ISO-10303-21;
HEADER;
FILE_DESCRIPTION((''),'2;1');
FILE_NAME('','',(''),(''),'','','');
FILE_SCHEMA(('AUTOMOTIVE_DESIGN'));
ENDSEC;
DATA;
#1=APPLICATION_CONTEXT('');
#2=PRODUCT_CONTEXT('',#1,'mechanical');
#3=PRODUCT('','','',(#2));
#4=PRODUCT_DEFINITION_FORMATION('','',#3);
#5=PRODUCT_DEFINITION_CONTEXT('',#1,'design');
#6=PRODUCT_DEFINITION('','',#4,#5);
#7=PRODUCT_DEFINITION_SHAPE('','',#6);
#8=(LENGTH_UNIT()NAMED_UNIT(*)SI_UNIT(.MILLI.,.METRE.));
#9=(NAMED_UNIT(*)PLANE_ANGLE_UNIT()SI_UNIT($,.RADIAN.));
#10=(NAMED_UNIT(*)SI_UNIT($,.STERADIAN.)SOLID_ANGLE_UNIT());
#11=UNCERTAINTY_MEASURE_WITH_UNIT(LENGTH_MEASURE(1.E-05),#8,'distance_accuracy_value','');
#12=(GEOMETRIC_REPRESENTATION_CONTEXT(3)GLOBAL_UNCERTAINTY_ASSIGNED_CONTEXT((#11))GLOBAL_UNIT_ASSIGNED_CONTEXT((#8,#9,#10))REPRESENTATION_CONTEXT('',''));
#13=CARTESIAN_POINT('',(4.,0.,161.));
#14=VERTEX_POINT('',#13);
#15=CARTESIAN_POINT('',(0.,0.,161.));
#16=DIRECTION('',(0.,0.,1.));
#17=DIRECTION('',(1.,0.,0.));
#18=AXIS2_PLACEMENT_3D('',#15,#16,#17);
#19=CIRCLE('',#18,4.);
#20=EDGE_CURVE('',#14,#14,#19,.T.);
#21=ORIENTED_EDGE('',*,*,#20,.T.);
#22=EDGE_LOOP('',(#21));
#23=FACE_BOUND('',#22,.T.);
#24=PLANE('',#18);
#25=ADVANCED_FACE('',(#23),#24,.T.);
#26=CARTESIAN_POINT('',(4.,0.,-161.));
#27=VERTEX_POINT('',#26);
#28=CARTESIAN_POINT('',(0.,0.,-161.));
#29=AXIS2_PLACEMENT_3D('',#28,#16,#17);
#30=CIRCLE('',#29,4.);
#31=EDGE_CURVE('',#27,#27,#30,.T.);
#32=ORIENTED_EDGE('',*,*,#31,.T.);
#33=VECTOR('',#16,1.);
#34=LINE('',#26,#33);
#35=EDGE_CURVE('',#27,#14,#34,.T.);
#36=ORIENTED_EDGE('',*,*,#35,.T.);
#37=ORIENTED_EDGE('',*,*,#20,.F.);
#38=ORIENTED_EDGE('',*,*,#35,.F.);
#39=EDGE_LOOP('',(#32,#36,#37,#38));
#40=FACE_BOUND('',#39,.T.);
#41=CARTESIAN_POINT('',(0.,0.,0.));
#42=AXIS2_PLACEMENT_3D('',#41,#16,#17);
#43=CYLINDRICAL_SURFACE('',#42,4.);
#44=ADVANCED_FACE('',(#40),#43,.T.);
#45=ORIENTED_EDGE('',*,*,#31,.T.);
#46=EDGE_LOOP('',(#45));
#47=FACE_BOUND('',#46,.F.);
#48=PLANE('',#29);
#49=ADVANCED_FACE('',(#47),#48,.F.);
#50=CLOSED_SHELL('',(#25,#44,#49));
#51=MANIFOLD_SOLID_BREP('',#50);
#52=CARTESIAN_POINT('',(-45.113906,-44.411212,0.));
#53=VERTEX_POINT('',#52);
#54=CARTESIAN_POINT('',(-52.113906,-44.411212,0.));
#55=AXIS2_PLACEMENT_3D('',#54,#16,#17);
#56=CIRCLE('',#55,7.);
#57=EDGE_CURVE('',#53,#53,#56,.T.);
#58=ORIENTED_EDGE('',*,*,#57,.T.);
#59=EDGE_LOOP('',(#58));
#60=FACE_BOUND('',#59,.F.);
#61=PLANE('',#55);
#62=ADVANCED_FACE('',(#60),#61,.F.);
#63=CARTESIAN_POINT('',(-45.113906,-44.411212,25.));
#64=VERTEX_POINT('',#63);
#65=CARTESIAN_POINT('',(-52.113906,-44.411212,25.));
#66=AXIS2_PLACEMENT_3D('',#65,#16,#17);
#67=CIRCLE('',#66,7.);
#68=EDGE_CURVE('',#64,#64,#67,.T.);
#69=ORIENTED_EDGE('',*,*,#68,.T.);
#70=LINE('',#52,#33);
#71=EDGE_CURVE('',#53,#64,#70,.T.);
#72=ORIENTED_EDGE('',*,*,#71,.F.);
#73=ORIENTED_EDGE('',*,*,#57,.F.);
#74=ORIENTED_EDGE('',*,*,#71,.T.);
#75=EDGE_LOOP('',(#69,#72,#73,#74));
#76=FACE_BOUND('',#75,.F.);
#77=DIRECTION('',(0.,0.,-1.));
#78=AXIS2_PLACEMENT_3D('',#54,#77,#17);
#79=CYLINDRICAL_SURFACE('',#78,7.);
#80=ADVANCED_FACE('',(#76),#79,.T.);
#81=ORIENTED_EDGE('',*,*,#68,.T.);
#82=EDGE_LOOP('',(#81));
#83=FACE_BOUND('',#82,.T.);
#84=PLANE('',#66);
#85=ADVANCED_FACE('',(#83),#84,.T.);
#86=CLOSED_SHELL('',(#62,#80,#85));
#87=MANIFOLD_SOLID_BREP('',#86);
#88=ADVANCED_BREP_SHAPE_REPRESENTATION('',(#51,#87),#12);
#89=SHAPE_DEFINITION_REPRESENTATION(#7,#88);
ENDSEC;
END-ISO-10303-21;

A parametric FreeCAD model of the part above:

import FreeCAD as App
import Part
import Sketcher

V = App.Vector
Q = App.Units.Quantity

doc = App.newDocument("Part")
body = doc.addObject("PartDesign::Body", "Body")

# Sketch on XY plane
sketch1 = body.newObject("Sketcher::SketchObject", "Sketch")
sketch1.AttachmentSupport = (doc.getObject("XY_Plane"), [""])
sketch1.MapMode = "FlatFace"
sketch1.addGeometry(Part.Circle(V(0, 0, 0), V(0, 0, 1), 4), False)
sketch1.addConstraint([
    Sketcher.Constraint("Coincident", 0, 3, -1, 1),
    Sketcher.Constraint("Diameter", 0, Q("8 mm")),
])
pad1 = body.newObject("PartDesign::Pad", "Pad")
pad1.Profile = sketch1
pad1.Length = 322
pad1.Midplane = True
body2 = doc.addObject("PartDesign::Body", "Body001")

# Sketch on XY plane
sketch2 = body2.newObject("Sketcher::SketchObject", "Sketch001")
sketch2.AttachmentSupport = (doc.getObject("XY_Plane001"), [""])
sketch2.MapMode = "FlatFace"
sketch2.addGeometry(Part.Circle(V(-52, -44, 0), V(0, 0, 1), 7), False)
sketch2.addConstraint([
    Sketcher.Constraint("Diameter", 0, Q("14 mm")),
    Sketcher.Constraint("DistanceX", 0, 3, -1, 1, Q("52.113906 mm")),
    Sketcher.Constraint("DistanceY", 0, 3, -1, 1, Q("44.411212 mm")),
])
pad2 = body2.newObject("PartDesign::Pad", "Pad001")
pad2.Profile = sketch2
pad2.Length = 25

doc.recompute()
